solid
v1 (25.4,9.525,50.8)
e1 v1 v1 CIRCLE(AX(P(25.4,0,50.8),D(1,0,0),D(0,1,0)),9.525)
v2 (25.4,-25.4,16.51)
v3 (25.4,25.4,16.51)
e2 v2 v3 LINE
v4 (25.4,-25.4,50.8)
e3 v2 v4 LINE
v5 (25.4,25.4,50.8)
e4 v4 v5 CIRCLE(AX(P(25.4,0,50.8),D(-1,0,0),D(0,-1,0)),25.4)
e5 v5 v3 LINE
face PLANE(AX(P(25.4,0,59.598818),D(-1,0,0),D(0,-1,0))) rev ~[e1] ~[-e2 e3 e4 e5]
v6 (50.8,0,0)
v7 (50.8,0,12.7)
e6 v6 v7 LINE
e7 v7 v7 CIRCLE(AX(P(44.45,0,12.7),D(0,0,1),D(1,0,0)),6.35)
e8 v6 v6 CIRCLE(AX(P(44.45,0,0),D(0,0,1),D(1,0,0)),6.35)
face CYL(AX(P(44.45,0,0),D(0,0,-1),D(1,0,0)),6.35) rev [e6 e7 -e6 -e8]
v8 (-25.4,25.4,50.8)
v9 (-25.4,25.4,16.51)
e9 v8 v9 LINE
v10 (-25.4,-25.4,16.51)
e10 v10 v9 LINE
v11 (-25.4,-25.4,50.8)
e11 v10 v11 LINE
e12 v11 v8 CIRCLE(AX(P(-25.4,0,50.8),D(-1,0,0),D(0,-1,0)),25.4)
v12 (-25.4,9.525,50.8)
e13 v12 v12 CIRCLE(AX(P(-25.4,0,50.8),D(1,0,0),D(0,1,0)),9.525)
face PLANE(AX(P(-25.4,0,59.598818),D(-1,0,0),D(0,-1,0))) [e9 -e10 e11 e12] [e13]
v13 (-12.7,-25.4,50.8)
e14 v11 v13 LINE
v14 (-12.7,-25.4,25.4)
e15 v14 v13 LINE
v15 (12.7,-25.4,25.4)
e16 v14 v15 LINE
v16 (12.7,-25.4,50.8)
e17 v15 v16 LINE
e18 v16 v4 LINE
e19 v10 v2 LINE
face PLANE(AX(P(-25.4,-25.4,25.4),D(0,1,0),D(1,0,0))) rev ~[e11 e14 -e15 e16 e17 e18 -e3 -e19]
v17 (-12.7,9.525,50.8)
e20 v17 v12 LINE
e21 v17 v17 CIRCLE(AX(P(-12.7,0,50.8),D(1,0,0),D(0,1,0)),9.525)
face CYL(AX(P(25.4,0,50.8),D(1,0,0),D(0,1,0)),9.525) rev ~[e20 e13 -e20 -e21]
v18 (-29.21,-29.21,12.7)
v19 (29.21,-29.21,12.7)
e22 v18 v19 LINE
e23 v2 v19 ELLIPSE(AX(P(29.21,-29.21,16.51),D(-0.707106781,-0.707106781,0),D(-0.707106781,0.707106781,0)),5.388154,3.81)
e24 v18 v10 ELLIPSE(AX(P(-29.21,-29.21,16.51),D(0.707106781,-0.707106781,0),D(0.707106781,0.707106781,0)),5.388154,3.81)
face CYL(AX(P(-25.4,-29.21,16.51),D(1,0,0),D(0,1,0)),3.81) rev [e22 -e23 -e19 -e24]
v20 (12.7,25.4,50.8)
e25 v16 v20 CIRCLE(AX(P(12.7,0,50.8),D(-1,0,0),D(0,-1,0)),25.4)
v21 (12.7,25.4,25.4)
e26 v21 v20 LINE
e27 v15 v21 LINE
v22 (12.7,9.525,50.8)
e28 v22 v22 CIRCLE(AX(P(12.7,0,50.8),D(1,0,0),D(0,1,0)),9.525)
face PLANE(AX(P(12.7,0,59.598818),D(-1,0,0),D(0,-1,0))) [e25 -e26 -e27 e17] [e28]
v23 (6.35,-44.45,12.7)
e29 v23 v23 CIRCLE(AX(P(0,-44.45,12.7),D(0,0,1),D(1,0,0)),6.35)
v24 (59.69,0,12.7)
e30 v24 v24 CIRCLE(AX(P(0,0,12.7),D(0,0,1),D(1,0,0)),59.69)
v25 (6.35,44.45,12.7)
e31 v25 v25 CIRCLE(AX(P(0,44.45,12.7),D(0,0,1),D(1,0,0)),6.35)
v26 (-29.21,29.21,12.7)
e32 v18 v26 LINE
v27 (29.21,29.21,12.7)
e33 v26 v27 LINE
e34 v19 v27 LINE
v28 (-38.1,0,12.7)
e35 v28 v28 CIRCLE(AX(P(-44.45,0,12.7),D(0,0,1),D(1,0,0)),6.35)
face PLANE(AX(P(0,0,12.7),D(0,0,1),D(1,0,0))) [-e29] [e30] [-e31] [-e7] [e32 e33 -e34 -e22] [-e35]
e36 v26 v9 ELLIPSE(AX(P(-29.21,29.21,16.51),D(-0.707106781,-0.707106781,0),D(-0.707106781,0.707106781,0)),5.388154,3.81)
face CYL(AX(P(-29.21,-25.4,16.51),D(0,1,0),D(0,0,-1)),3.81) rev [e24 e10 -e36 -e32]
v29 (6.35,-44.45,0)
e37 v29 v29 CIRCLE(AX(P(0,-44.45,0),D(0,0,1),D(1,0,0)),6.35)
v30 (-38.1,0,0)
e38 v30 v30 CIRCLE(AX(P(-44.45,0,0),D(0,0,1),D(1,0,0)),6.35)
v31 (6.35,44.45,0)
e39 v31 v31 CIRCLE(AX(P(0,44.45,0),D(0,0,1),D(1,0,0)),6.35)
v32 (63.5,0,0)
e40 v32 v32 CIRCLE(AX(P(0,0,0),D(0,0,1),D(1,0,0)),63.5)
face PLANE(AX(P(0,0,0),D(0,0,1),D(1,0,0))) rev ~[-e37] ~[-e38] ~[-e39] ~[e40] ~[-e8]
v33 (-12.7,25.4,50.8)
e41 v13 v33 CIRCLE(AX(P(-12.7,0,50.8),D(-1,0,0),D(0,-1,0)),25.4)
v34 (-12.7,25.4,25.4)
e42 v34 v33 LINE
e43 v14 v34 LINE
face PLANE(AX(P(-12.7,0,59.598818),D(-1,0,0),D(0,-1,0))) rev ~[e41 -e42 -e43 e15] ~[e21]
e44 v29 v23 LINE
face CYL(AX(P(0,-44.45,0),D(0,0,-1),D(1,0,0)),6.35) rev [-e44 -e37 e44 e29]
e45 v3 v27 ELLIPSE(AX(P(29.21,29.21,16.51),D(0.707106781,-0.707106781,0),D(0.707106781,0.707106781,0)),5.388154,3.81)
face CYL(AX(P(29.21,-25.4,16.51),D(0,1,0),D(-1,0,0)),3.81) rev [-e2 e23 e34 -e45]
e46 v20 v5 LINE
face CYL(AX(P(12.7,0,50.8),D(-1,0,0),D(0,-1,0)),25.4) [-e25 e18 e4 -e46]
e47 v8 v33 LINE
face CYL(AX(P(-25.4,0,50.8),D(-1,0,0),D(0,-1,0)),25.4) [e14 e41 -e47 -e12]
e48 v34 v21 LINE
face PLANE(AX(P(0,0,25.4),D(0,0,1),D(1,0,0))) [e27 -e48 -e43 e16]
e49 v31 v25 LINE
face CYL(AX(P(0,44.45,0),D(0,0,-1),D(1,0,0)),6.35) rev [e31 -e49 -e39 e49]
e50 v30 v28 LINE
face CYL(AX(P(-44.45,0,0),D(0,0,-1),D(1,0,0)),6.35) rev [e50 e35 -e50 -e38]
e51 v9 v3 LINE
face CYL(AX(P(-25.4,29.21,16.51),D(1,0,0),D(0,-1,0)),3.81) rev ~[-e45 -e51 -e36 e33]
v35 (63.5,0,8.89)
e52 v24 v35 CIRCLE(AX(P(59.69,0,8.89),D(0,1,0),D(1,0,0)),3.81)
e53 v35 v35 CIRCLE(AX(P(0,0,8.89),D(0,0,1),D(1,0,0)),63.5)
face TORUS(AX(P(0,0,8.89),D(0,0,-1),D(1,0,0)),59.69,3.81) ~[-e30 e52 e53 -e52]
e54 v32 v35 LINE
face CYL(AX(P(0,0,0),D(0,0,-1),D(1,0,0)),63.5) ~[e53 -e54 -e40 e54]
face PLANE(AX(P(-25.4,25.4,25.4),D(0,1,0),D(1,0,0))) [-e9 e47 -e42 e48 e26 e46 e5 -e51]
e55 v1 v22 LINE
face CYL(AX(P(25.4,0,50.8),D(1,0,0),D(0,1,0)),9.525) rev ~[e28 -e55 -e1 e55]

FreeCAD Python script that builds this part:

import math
import FreeCAD as App
import Part
import Sketcher
from FreeCAD import Vector
Q = App.Units.Quantity


def edges_at(feature, points):
    """Names of the edges that pass closest to the given points."""
    edges = feature.Shape.Edges
    near = lambda p: min(range(len(edges)), key=lambda i: edges[i].distToShape(Part.Vertex(*p))[0])
    return sorted({f"Edge{near(p) + 1}" for p in points})


def add_polygon(sketch, points):
    """Adds a closed chain of lines whose ends are joined by coincident constraints."""
    first, n = sketch.GeometryCount, len(points)
    for a, b in zip(points, points[1:] + points[:1]):
        sketch.addGeometry(Part.LineSegment(App.Vector(*a, 0), App.Vector(*b, 0)), False)
    for i in range(n):
        sketch.addConstraint(Sketcher.Constraint("Coincident", first + i, 2, first + (i + 1) % n, 1))

doc = App.newDocument("Part")
body = doc.addObject("PartDesign::Body", "Body")

# Sketch on XY plane
sketch1 = body.newObject("Sketcher::SketchObject", "Sketch")
sketch1.AttachmentSupport = (doc.getObject("XY_Plane"), [""])
sketch1.MapMode = "FlatFace"
sketch1.addGeometry([
    Part.Circle(Vector(0, 0, 0), Vector(0, 0, 1), 64),  # 0
    Part.Circle(Vector(0, -44, 0), Vector(0, 0, 1), 6),  # 1
    Part.Circle(Vector(-44, 0, 0), Vector(0, 0, 1), 6),  # 2
    Part.Circle(Vector(44, 0, 0), Vector(0, 0, 1), 6),  # 3
    Part.Circle(Vector(0, 44, 0), Vector(0, 0, 1), 6),  # 4
], False)
sketch1.addConstraint([
    Sketcher.Constraint("Coincident", 0, 3, -1, 1),
    Sketcher.Constraint("Equal", 1, 2),
    Sketcher.Constraint("Equal", 2, 3),
    Sketcher.Constraint("Equal", 3, 4),
    Sketcher.Constraint("Symmetric", 2, 3, 3, 3, -1, 1),
    Sketcher.Constraint("Symmetric", 1, 3, 4, 3, -1, 1),
    Sketcher.Constraint("PointOnObject", 1, 3, -2),
    Sketcher.Constraint("PointOnObject", 2, 3, -1),
    Sketcher.Constraint("Diameter", 0, Q("5 in")),
    Sketcher.Constraint("Diameter", 1, Q("0.5 in")),
    Sketcher.Constraint("DistanceX", 2, 3, 3, 3, Q("3.5 in")),
    Sketcher.Constraint("DistanceY", 1, 3, 4, 3, Q("3.5 in")),
])
pad1 = body.newObject("PartDesign::Pad", "Pad")
pad1.Profile = sketch1
pad1.Length = Q("0.5 in")

# Sketch on XY plane
sketch2 = body.newObject("Sketcher::SketchObject", "Sketch001")
sketch2.AttachmentSupport = (doc.getObject("XY_Plane"), [""])
sketch2.MapMode = "FlatFace"
sketch2.AttachmentOffset = App.Placement(Vector(0, 0, 0.5 * 25.4), App.Rotation())
add_polygon(sketch2, [(-25, 25), (-25, -25), (25, -25), (25, 25)])  # lines 0-3
sketch2.addConstraint([
    Sketcher.Constraint("Vertical", 0),
    Sketcher.Constraint("Horizontal", 1),
    Sketcher.Constraint("Vertical", 2),
    Sketcher.Constraint("Horizontal", 3),
    Sketcher.Constraint("Symmetric", 0, 2, 2, 2, -1, 1),
    Sketcher.Constraint("Equal", 3, 0),
    Sketcher.Constraint("DistanceX", 1, 1, 1, 2, Q("2 in")),
])
pad2 = body.newObject("PartDesign::Pad", "Pad001")
pad2.Profile = sketch2
pad2.Length = Q("0.5 in")

# Sketch on XY plane
sketch3 = body.newObject("Sketcher::SketchObject", "Sketch002")
sketch3.AttachmentSupport = (doc.getObject("XY_Plane"), [""])
sketch3.MapMode = "FlatFace"
sketch3.AttachmentOffset = App.Placement(Vector(0, 0, 1 * 25.4), App.Rotation())
add_polygon(sketch3, [(-25, 25), (-25, -25), (-13, -25), (-13, 25)])  # lines 0-3
add_polygon(sketch3, [(13, 25), (13, -25), (25, -25), (25, 25)])  # lines 4-7
sketch3.addConstraint([
    Sketcher.Constraint("Vertical", 0),
    Sketcher.Constraint("Horizontal", 1),
    Sketcher.Constraint("Vertical", 2),
    Sketcher.Constraint("Horizontal", 3),
    Sketcher.Constraint("Vertical", 4),
    Sketcher.Constraint("Horizontal", 5),
    Sketcher.Constraint("Vertical", 6),
    Sketcher.Constraint("Horizontal", 7),
    Sketcher.Constraint("Symmetric", 2, 2, 4, 2, -1, 1),
    Sketcher.Constraint("Symmetric", 0, 2, 6, 2, -1, 1),
    Sketcher.Constraint("Horizontal", 1, 2, 4, 2),
    Sketcher.Constraint("DistanceY", 0, 2, 0, 1, Q("2 in")),
    Sketcher.Constraint("DistanceX", 1, 1, 1, 2, Q("0.5 in")),
    Sketcher.Constraint("DistanceX", 0, 2, -1, 1, Q("1 in")),
])
pad3 = body.newObject("PartDesign::Pad", "Pad002")
pad3.Profile = sketch3
pad3.Length = Q("1 in")

# Sketch on YZ plane
sketch4 = body.newObject("Sketcher::SketchObject", "Sketch003")
sketch4.AttachmentSupport = (doc.getObject("YZ_Plane"), [""])
sketch4.MapMode = "FlatFace"
sketch4.AttachmentOffset = App.Placement(Vector(0, 0, -1 * 25.4), App.Rotation())
sketch4.addGeometry([
    Part.LineSegment(Vector(25, 51, 0), Vector(-25, 51, 0)),
    Part.ArcOfCircle(Part.Circle(Vector(0, 51, 0), Vector(0, 0, 1), 25), math.radians(0), math.radians(180)),
], False)
sketch4.addConstraint([
    Sketcher.Constraint("Coincident", 0, 1, 1, 1),
    Sketcher.Constraint("Coincident", 1, 2, 0, 2),
    Sketcher.Constraint("Horizontal", 0),
    Sketcher.Constraint("PointOnObject", 1, 3, -2),
    Sketcher.Constraint("Horizontal", 1, 3, 0, 1),
    Sketcher.Constraint("Radius", 1, Q("1 in")),
    Sketcher.Constraint("DistanceY", -1, 1, 1, 3, Q("2 in")),
])
pad4 = body.newObject("PartDesign::Pad", "Pad003")
pad4.Profile = sketch4
pad4.Length = Q("0.5 in")

# Sketch on YZ plane
sketch5 = body.newObject("Sketcher::SketchObject", "Sketch004")
sketch5.AttachmentSupport = (doc.getObject("YZ_Plane"), [""])
sketch5.MapMode = "FlatFace"
sketch5.AttachmentOffset = App.Placement(Vector(0, 0, 0.5 * 25.4), App.Rotation())
sketch5.addGeometry([
    Part.LineSegment(Vector(25, 51, 0), Vector(-25, 51, 0)),
    Part.ArcOfCircle(Part.Circle(Vector(0, 51, 0), Vector(0, 0, 1), 25), math.radians(0), math.radians(180)),
], False)
sketch5.addConstraint([
    Sketcher.Constraint("Coincident", 0, 1, 1, 1),
    Sketcher.Constraint("Coincident", 1, 2, 0, 2),
    Sketcher.Constraint("Horizontal", 0),
    Sketcher.Constraint("PointOnObject", 1, 3, -2),
    Sketcher.Constraint("Horizontal", 1, 3, 0, 1),
    Sketcher.Constraint("Radius", 1, Q("1 in")),
    Sketcher.Constraint("DistanceY", -1, 1, 1, 3, Q("2 in")),
])
pad5 = body.newObject("PartDesign::Pad", "Pad004")
pad5.Profile = sketch5
pad5.Length = Q("0.5 in")

# Sketch on YZ plane
sketch6 = body.newObject("Sketcher::SketchObject", "Sketch005")
sketch6.AttachmentSupport = (doc.getObject("YZ_Plane"), [""])
sketch6.MapMode = "FlatFace"
sketch6.AttachmentOffset = App.Placement(Vector(0, 0, 1 * 25.4), App.Rotation())
sketch6.addGeometry(Part.Circle(Vector(0, 51, 0), Vector(0, 0, 1), 10), False)
sketch6.addConstraint([
    Sketcher.Constraint("PointOnObject", 0, 3, -2),
    Sketcher.Constraint("Diameter", 0, Q("0.75 in")),
    Sketcher.Constraint("DistanceY", -1, 1, 0, 3, Q("2 in")),
])
pocket1 = body.newObject("PartDesign::Pocket", "Pocket")
pocket1.Profile = sketch6
pocket1.Type = "ThroughAll"
doc.recompute()

fillet = body.newObject("PartDesign::Fillet", "Fillet")
fillet.Base = (pocket1, edges_at(pocket1, [
    (-63.5, 0, 12.7),
    (-25.4, 0, 12.7),
    (0, 25.4, 12.7),
    (25.4, 0, 12.7),
    (0, -25.4, 12.7),
]))
fillet.Radius = Q("0.15 in")

doc.recompute()
